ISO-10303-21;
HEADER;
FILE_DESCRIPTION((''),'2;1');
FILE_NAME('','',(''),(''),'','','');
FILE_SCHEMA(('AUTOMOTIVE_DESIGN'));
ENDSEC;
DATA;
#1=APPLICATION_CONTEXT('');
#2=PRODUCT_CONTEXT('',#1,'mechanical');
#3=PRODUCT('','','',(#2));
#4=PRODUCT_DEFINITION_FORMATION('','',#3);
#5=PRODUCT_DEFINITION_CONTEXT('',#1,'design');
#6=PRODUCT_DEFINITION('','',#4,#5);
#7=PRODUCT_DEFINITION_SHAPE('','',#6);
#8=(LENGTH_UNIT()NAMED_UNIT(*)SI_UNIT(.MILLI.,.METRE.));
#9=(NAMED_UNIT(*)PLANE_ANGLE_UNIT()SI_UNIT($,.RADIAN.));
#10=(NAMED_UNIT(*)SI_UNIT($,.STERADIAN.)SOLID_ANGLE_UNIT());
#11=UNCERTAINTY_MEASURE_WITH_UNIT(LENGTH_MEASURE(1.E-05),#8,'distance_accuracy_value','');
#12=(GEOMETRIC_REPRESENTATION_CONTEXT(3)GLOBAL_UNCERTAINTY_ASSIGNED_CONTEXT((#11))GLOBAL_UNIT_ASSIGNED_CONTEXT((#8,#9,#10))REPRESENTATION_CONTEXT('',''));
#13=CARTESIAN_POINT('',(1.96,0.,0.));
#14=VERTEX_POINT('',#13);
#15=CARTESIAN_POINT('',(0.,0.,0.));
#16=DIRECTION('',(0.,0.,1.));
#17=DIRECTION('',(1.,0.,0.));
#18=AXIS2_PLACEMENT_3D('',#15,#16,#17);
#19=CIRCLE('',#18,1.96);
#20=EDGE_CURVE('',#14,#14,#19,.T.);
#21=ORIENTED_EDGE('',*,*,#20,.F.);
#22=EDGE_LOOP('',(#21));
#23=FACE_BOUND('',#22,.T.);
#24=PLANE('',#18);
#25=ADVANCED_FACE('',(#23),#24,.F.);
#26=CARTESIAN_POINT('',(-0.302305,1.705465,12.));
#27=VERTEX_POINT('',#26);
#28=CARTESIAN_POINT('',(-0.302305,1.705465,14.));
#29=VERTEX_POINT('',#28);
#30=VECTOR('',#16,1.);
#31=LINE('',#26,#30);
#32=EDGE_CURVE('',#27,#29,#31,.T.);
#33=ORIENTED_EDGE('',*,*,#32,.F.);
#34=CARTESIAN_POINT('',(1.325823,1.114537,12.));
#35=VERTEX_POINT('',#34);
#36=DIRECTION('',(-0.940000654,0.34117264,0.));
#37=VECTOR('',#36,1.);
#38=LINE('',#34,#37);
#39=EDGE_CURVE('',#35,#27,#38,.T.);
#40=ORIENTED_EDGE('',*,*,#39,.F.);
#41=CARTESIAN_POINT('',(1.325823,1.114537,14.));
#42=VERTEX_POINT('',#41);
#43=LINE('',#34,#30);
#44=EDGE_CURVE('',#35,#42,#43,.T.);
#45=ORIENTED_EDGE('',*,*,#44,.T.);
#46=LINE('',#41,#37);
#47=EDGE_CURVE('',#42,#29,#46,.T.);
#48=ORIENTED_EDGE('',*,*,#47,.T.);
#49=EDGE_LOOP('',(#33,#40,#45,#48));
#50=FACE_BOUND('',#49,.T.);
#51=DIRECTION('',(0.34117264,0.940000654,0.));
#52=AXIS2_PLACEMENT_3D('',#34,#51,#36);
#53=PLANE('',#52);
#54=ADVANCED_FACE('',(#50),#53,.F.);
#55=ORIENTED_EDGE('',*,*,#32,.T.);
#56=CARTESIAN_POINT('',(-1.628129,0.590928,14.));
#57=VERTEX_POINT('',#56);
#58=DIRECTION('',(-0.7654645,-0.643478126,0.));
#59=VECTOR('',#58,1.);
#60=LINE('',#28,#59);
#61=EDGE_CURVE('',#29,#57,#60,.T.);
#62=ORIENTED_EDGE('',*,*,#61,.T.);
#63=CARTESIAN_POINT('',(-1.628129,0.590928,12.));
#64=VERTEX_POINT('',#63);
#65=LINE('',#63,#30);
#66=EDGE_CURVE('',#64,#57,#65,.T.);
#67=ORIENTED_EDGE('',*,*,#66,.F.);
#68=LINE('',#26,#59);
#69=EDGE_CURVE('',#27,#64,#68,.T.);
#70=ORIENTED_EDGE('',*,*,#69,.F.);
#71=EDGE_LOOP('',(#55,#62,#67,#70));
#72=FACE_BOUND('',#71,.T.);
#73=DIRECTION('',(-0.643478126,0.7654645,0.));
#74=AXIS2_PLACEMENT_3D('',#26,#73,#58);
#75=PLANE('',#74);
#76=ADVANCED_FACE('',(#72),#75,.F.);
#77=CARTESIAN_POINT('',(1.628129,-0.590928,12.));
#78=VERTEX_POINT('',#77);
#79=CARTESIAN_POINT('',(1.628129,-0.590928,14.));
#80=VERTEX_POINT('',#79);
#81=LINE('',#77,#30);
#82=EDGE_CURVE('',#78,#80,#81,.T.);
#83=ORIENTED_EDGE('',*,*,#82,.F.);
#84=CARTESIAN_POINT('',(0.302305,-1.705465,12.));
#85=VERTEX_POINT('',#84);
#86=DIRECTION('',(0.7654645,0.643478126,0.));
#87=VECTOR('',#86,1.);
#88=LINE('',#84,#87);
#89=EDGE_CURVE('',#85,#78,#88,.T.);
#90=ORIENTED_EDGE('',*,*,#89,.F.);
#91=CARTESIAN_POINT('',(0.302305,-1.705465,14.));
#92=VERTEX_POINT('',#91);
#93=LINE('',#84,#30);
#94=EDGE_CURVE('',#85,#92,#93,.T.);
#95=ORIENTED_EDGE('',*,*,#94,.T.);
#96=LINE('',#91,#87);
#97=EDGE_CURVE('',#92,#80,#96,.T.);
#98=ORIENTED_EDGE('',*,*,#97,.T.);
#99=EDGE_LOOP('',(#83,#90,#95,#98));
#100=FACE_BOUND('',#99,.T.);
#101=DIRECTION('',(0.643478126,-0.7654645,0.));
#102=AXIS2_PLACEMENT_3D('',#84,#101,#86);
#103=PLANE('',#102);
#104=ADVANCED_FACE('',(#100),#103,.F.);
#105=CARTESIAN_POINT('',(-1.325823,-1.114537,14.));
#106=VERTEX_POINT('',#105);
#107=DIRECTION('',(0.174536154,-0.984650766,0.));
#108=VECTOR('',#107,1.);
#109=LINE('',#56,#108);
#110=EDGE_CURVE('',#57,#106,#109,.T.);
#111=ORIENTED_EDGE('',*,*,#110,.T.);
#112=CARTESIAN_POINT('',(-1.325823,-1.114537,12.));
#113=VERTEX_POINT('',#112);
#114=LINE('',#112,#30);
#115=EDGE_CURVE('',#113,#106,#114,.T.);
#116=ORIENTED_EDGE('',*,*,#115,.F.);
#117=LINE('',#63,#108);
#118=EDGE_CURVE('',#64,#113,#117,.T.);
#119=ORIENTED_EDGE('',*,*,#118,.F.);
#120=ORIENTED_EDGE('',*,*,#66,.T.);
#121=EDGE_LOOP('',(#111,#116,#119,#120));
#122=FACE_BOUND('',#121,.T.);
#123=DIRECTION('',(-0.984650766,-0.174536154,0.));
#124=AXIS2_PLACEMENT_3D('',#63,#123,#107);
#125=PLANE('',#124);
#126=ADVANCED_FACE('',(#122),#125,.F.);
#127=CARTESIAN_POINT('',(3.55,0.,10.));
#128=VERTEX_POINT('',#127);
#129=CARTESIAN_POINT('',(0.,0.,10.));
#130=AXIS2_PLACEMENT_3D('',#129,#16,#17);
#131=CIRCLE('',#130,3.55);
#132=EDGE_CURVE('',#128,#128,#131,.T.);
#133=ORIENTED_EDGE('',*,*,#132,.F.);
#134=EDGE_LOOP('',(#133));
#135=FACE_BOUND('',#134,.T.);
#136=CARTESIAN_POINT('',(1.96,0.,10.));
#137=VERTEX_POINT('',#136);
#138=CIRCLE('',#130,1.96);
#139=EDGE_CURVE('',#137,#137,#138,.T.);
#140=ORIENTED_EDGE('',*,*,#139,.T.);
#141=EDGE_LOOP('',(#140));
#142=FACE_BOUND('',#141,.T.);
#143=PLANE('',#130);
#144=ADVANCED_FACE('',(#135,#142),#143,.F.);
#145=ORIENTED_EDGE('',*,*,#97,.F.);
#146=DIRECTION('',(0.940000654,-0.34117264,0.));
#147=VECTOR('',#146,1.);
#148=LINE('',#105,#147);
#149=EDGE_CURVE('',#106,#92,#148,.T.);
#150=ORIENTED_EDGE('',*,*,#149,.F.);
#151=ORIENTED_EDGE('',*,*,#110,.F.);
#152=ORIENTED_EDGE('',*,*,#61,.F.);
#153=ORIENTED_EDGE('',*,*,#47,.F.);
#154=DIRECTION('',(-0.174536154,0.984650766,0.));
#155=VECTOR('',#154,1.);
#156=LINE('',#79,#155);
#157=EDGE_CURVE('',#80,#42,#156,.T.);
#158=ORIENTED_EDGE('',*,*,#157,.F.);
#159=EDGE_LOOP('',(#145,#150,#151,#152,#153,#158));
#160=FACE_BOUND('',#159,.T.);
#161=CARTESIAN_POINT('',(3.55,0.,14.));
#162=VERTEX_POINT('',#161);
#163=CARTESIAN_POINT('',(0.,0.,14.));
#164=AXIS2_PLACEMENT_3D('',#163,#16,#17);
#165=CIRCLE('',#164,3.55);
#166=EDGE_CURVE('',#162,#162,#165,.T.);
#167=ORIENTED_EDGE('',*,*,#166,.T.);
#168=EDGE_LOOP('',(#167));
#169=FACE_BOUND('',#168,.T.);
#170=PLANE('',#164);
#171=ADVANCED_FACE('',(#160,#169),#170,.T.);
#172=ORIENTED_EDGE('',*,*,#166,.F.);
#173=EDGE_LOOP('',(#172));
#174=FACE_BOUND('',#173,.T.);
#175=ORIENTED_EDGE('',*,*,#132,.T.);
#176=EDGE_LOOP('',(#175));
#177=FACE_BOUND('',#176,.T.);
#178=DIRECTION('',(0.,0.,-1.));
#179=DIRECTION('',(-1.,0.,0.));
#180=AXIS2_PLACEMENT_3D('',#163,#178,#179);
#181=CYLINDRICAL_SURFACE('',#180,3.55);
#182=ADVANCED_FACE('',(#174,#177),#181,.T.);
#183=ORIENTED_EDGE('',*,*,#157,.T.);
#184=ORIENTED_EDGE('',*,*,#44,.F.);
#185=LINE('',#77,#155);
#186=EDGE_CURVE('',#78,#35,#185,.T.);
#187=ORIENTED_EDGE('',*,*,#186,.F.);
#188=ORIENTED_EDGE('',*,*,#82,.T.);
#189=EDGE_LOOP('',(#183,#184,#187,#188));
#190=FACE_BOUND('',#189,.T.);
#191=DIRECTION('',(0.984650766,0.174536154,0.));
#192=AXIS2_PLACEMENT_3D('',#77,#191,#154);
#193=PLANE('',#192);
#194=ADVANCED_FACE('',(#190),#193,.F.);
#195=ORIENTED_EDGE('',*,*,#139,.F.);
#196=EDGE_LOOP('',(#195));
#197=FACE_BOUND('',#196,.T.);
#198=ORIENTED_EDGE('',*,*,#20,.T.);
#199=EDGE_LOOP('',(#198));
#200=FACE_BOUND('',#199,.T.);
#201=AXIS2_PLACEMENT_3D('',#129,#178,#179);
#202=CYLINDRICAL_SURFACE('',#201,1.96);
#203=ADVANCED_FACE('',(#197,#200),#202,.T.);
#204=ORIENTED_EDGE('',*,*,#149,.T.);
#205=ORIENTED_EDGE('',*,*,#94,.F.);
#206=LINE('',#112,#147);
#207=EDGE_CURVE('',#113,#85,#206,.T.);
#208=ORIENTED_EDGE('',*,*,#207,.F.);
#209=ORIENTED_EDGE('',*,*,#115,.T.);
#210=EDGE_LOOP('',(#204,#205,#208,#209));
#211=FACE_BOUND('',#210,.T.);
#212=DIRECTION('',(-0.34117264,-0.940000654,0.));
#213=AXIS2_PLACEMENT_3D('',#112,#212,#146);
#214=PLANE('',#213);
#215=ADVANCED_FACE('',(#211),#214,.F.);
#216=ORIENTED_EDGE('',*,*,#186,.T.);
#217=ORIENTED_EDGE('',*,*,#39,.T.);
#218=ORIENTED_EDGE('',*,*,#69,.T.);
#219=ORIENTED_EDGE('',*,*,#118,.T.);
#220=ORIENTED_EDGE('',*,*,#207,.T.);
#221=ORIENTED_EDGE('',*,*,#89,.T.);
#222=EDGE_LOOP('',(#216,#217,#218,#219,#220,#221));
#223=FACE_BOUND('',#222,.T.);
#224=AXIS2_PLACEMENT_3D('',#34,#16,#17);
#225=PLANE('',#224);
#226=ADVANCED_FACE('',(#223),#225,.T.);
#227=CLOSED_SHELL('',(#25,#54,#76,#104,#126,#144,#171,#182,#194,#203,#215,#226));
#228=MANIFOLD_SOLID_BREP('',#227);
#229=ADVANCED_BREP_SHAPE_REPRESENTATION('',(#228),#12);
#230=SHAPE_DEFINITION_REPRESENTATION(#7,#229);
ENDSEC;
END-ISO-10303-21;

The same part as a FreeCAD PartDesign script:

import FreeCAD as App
import Part
import Sketcher

V = App.Vector


def add_polygon(sketch, points):
    """Adds a closed chain of lines whose ends are joined by coincident constraints."""
    first, n = sketch.GeometryCount, len(points)
    for a, b in zip(points, points[1:] + points[:1]):
        sketch.addGeometry(Part.LineSegment(App.Vector(*a, 0), App.Vector(*b, 0)), False)
    for i in range(n):
        sketch.addConstraint(Sketcher.Constraint("Coincident", first + i, 2, first + (i + 1) % n, 1))

doc = App.newDocument("Part")
params = doc.addObject("Spreadsheet::Sheet", "Params")
for row, (alias, value) in enumerate([
    ("sketch1_diameter", "3.92 mm"),
    ("pad1_length", "10 mm"),
    ("sketch2_diameter", "7.1 mm"),
    ("pad2_length", "4 mm"),
    ("pocket1_length", "2 mm"),
], start=1):
    params.set(f"A{row}", alias)
    params.set(f"B{row}", "=" + value)
    params.setAlias(f"B{row}", alias)

body = doc.addObject("PartDesign::Body", "Body")

sketch1 = body.newObject("Sketcher::SketchObject", "Sketch")
sketch1.AttachmentSupport = (doc.getObject("XY_Plane"), [""])
sketch1.MapMode = "FlatFace"
sketch1.addGeometry(Part.Circle(V(0, 0, 0), V(0, 0, 1), 2), False)
sketch1.addConstraint(Sketcher.Constraint("Coincident", 0, 3, -1, 1))
sketch1.addConstraint(Sketcher.Constraint("Diameter", 0, 3.92))
sketch1.setExpression("Constraints[1]", "Params.sketch1_diameter")
pad1 = body.newObject("PartDesign::Pad", "Pad")
pad1.Profile = sketch1
pad1.setExpression("Length", "Params.pad1_length")

sketch2 = body.newObject("Sketcher::SketchObject", "Sketch001")
sketch2.AttachmentSupport = (doc.getObject("XY_Plane"), [""])
sketch2.MapMode = "FlatFace"
sketch2.AttachmentOffset = App.Placement(V(0, 0, 10), App.Rotation())
sketch2.addGeometry(Part.Circle(V(0, 0, 0), V(0, 0, 1), 3.5), False)
sketch2.addConstraint(Sketcher.Constraint("Coincident", 0, 3, -1, 1))
sketch2.addConstraint(Sketcher.Constraint("Diameter", 0, 7.1))
sketch2.setExpression("Constraints[1]", "Params.sketch2_diameter")
pad2 = body.newObject("PartDesign::Pad", "Pad001")
pad2.Profile = sketch2
pad2.setExpression("Length", "Params.pad2_length")

sketch3 = body.newObject("Sketcher::SketchObject", "Sketch002")
sketch3.AttachmentSupport = (doc.getObject("XY_Plane"), [""])
sketch3.MapMode = "FlatFace"
sketch3.AttachmentOffset = App.Placement(V(0, 0, 14), App.Rotation())
add_polygon(sketch3, [(1.3, 1.1), (-0.3, 1.7), (-1.6, 0.6), (-1.3, -1.1), (0.3, -1.7), (1.6, -0.6)])
sketch3.addConstraint(Sketcher.Constraint("Symmetric", 0, 2, 3, 2, -1, 1))
sketch3.addConstraint(Sketcher.Constraint("Symmetric", 1, 2, 4, 2, -1, 1))
sketch3.addConstraint(Sketcher.Constraint("Symmetric", 2, 2, 5, 2, -1, 1))
sketch3.addConstraint(Sketcher.Constraint("Equal", 0, 1))
sketch3.addConstraint(Sketcher.Constraint("Equal", 1, 2))
sketch3.addConstraint(Sketcher.Constraint("DistanceY", 2, 2, 0, 2, 2.820002))
sketch3.addConstraint(Sketcher.Constraint("Distance", 0, 1.732051))
sketch3.addConstraint(Sketcher.Constraint("DistanceX", 1, 2, -1, 1, 1.628129))
sketch3.addConstraint(Sketcher.Constraint("DistanceY", -1, 1, 1, 2, 0.590928))
pocket1 = body.newObject("PartDesign::Pocket", "Pocket")
pocket1.Profile = sketch3
pocket1.setExpression("Length", "Params.pocket1_length")

doc.recompute()
